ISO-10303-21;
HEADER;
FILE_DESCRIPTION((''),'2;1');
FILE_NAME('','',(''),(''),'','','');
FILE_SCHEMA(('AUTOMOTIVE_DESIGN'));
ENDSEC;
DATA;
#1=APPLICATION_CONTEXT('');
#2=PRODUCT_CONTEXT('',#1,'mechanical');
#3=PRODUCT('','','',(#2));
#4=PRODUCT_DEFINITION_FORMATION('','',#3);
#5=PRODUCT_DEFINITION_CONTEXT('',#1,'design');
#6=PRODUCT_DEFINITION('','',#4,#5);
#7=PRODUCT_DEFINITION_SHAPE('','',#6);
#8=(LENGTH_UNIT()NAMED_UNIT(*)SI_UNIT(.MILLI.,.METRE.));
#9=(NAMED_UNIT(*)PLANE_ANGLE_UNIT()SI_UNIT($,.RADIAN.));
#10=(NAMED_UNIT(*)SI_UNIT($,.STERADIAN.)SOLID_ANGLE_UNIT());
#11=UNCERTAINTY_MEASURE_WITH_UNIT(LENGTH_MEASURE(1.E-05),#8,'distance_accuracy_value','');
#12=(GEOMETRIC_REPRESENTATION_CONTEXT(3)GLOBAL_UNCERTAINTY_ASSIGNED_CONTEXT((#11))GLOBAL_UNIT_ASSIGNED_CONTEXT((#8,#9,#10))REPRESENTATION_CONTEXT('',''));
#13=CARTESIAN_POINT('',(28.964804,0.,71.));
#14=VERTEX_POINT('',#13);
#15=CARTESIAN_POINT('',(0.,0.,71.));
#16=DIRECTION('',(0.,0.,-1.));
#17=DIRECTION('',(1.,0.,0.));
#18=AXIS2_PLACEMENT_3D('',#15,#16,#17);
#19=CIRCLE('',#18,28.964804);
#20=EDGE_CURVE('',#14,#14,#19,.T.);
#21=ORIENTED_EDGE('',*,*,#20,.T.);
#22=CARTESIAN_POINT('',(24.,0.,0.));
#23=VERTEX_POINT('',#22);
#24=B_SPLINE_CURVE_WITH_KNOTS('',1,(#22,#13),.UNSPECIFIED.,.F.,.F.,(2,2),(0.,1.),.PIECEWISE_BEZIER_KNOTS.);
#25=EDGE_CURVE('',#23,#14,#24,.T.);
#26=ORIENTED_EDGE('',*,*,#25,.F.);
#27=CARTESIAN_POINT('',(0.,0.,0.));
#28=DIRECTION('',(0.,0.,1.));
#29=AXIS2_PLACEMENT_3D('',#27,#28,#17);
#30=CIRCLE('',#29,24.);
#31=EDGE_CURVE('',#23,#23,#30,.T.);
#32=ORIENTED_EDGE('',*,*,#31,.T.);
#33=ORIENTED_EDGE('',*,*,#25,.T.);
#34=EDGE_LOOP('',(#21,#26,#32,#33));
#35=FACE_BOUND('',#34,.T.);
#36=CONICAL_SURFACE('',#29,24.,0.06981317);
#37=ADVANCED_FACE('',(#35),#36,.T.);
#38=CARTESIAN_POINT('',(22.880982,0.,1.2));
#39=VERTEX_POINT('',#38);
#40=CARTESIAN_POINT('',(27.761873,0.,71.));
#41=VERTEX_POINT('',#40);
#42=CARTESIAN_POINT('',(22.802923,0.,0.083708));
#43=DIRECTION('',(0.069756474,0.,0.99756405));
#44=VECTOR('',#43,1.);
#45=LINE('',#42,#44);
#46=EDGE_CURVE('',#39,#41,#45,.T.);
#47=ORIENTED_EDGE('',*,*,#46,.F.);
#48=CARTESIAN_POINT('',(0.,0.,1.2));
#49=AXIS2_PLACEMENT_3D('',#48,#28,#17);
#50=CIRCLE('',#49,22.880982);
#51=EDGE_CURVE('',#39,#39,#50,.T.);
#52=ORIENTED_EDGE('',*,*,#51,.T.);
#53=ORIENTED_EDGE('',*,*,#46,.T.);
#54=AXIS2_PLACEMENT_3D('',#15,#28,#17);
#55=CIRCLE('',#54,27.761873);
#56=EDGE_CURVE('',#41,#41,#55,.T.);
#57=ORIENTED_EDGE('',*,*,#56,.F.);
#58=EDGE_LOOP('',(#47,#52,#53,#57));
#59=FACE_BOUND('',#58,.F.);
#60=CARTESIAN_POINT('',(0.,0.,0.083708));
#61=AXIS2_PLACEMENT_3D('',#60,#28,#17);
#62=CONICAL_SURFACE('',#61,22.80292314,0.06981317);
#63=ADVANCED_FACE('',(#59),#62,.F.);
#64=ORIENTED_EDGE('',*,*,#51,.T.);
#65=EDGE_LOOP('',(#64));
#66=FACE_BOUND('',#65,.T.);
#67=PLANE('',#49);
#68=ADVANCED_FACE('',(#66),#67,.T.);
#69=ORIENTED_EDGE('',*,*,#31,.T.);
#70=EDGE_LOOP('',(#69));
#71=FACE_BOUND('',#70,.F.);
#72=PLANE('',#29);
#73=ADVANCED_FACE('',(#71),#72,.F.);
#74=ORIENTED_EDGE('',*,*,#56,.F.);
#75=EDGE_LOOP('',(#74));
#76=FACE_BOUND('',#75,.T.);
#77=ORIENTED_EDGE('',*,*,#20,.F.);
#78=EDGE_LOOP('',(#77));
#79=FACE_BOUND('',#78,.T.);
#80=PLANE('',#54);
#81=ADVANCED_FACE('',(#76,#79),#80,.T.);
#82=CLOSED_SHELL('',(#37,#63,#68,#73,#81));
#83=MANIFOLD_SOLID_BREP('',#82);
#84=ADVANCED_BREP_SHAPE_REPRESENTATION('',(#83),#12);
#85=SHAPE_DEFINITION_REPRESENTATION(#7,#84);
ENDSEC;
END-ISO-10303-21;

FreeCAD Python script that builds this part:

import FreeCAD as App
import Part
import Sketcher

V = App.Vector
Q = App.Units.Quantity


def faces_at(feature, points):
    """Names of the faces that lie closest to the given points."""
    faces = feature.Shape.Faces
    near = lambda p: min(range(len(faces)), key=lambda i: faces[i].distToShape(Part.Vertex(*p))[0])
    return sorted({f"Face{near(p) + 1}" for p in points})

doc = App.newDocument("Part")
params = doc.addObject("Spreadsheet::Sheet", "Params")
for row, (alias, value) in enumerate([
    ("sketch1_diameter", "48 mm"),
    ("pad1_length", "71 mm"),
    ("pad1_taper", "4 deg"),
    ("thickness_wall", "1.2 mm"),
], start=1):
    params.set(f"A{row}", alias)
    params.set(f"B{row}", "=" + value)
    params.setAlias(f"B{row}", alias)

body = doc.addObject("PartDesign::Body", "Body")

# Sketch on XY plane
sketch1 = doc.addObject("Sketcher::SketchObject", "Sketch")
body.addObject(sketch1)
sketch1.AttachmentSupport = (doc.XY_Plane, [""])
sketch1.MapMode = "FlatFace"
sketch1.addGeometry(Part.Circle(V(0, 0, 0), V(0, 0, 1), 24), False)
sketch1.addConstraint(Sketcher.Constraint("Coincident", 0, 3, -1, 1))
sketch1.addConstraint(Sketcher.Constraint("Diameter", 0, Q("48 mm")))
sketch1.setExpression("Constraints[1]", "Params.sketch1_diameter")
pad1 = doc.addObject("PartDesign::Pad", "Pad")
body.addObject(pad1)
pad1.Profile = sketch1
pad1.setExpression("Length", "Params.pad1_length")
pad1.setExpression("TaperAngle", "Params.pad1_taper")
doc.recompute()

thickness = doc.addObject("PartDesign::Thickness", "Thickness")
body.addObject(thickness)
thickness.Base = (pad1, faces_at(pad1, [(0, 0, 71)]))
thickness.setExpression("Value", "Params.thickness_wall")
thickness.Reversed = True
thickness.Join = "Intersection"

doc.recompute()
